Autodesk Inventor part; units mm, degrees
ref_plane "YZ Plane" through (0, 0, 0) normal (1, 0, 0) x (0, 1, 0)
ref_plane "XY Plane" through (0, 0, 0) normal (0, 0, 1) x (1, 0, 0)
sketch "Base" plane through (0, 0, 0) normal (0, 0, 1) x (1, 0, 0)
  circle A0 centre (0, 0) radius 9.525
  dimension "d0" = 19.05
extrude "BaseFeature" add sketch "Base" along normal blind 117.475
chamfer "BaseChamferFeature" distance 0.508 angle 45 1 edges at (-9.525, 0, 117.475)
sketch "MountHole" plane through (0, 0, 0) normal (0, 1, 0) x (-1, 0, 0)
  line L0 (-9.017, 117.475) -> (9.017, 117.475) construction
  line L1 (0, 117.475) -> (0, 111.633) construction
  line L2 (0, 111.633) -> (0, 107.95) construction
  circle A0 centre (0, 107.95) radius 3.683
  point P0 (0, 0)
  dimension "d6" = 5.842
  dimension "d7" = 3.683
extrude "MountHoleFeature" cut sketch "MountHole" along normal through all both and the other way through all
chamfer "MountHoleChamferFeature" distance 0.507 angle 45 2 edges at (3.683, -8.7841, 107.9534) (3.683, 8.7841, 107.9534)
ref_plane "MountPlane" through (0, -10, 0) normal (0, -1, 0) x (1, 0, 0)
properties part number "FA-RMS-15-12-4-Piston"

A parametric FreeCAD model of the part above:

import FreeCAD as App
import Part
import Sketcher
Q = App.Units.Quantity


def edges_at(feature, points):
    """Names of the edges that pass closest to the given points."""
    edges = feature.Shape.Edges
    near = lambda p: min(range(len(edges)), key=lambda i: edges[i].distToShape(Part.Vertex(*p))[0])
    return sorted({f"Edge{near(p) + 1}" for p in points})

doc = App.newDocument("Part")
body = doc.addObject("PartDesign::Body", "Body")

sketch1 = doc.addObject("Sketcher::SketchObject", "Sketch")
body.addObject(sketch1)
sketch1.AttachmentSupport = (doc.XY_Plane, [""])
sketch1.MapMode = "FlatFace"
sketch1.addGeometry(Part.Circle(App.Vector(0, 0, 0), App.Vector(0, 0, 1), 9.525), False)
sketch1.addConstraint([
    Sketcher.Constraint("Coincident", 0, 3, -1, 1),
    Sketcher.Constraint("Diameter", 0, Q("0.75 in")),
])
pad1 = doc.addObject("PartDesign::Pad", "Pad")
body.addObject(pad1)
pad1.Profile = sketch1
pad1.Length = Q("4.625 in")
doc.recompute()

chamfer = doc.addObject("PartDesign::Chamfer", "Chamfer")
body.addObject(chamfer)
chamfer.Base = (pad1, edges_at(pad1, [(-9.525, 0, 117.475)]))
chamfer.Size = Q("0.02 in")

sketch2 = doc.addObject("Sketcher::SketchObject", "Sketch001")
body.addObject(sketch2)
sketch2.AttachmentSupport = (doc.XZ_Plane, [""])
sketch2.MapMode = "FlatFace"
sketch2.addGeometry(Part.Circle(App.Vector(0, 107.95, 0), App.Vector(0, 0, 1), 3.683), False)
sketch2.addConstraint([
    Sketcher.Constraint("PointOnObject", 0, 3, -2),
    Sketcher.Constraint("Diameter", 0, Q("0.29 in")),
    Sketcher.Constraint("DistanceY", -1, 1, 0, 3, Q("4.25 in")),
])
pocket1 = doc.addObject("PartDesign::Pocket", "Pocket")
body.addObject(pocket1)
pocket1.Profile = sketch2
pocket1.Type = "ThroughAll"
pocket1.Midplane = True
doc.recompute()

chamfer2 = doc.addObject("PartDesign::Chamfer", "Chamfer001")
body.addObject(chamfer2)
chamfer2.Base = (pocket1, edges_at(pocket1, [(3.683, -8.784, 107.953), (3.683, 8.784, 107.953)]))
chamfer2.Size = 0.507

doc.recompute()
